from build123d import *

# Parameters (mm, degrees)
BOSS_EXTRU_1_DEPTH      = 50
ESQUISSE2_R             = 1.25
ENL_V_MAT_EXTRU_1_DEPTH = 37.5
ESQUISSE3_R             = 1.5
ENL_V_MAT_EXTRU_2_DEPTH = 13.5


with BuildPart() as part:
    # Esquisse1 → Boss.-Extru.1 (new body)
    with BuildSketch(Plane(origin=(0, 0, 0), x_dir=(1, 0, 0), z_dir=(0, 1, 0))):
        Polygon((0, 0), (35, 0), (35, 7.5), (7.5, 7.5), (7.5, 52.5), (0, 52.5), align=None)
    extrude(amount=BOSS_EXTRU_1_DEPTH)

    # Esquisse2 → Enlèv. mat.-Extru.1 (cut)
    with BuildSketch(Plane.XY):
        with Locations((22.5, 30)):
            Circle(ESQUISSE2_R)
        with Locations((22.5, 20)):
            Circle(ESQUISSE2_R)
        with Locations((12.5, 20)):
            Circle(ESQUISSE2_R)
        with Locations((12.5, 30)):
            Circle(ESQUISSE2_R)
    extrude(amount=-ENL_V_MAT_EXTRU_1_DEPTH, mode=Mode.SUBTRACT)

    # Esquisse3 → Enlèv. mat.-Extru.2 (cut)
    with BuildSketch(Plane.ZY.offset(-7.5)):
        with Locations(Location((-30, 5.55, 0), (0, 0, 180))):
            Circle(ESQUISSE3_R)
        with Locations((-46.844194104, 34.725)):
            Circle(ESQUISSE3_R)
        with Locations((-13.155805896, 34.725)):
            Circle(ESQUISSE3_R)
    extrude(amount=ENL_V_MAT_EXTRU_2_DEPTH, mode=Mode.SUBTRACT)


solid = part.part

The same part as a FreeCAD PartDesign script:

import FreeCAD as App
import Part
import Sketcher
from FreeCAD import Vector

doc = App.newDocument("Part")
body = doc.addObject("PartDesign::Body", "Body")

sketch1 = body.newObject("Sketcher::SketchObject", "Sketch")
sketch1.AttachmentSupport = (doc.getObject("XZ_Plane"), [""])
sketch1.MapMode = "FlatFace"
sketch1.addGeometry([
    Part.LineSegment(Vector(0, 0, 0), Vector(35, 0, 0)),
    Part.LineSegment(Vector(35, 0, 0), Vector(35, -8, 0)),
    Part.LineSegment(Vector(35, -8, 0), Vector(8, -8, 0)),
    Part.LineSegment(Vector(8, -8, 0), Vector(8, -52, 0)),
    Part.LineSegment(Vector(8, -52, 0), Vector(0, -52, 0)),
    Part.LineSegment(Vector(0, -52, 0), Vector(0, 0, 0)),
], False)
sketch1.addConstraint([
    Sketcher.Constraint("Coincident", 0, 2, 1, 1),
    Sketcher.Constraint("Coincident", 1, 2, 2, 1),
    Sketcher.Constraint("Coincident", 2, 2, 3, 1),
    Sketcher.Constraint("Coincident", 3, 2, 4, 1),
    Sketcher.Constraint("Coincident", 4, 2, 5, 1),
    Sketcher.Constraint("Coincident", 5, 2, 0, 1),
    Sketcher.Constraint("Horizontal", 0),
    Sketcher.Constraint("Vertical", 1),
    Sketcher.Constraint("Horizontal", 2),
    Sketcher.Constraint("Vertical", 3),
    Sketcher.Constraint("Horizontal", 4),
    Sketcher.Constraint("Vertical", 5),
    Sketcher.Constraint("Coincident", 5, 2, -1, 1),
    Sketcher.Constraint("Equal", 4, 1),
    Sketcher.Constraint("DistanceX", 0, 1, 0, 2, 35.0),
    Sketcher.Constraint("DistanceY", 3, 2, 3, 1, 45.0),
    Sketcher.Constraint("DistanceX", 2, 2, 2, 1, 27.5),
])
pad1 = body.newObject("PartDesign::Pad", "Pad")
pad1.Profile = sketch1
pad1.Length = 50
pad1.Reversed = True

sketch2 = body.newObject("Sketcher::SketchObject", "Sketch001")
sketch2.AttachmentSupport = (doc.getObject("XY_Plane"), [""])
sketch2.MapMode = "FlatFace"
sketch2.addGeometry([
    Part.Circle(Vector(22.5, 30, 0), Vector(0, 0, 1), 1.2),
    Part.Circle(Vector(22.5, 20, 0), Vector(0, 0, 1), 1.2),
    Part.Circle(Vector(12.5, 20, 0), Vector(0, 0, 1), 1.2),
    Part.Circle(Vector(12.5, 30, 0), Vector(0, 0, 1), 1.2),
], False)
sketch2.addConstraint([
    Sketcher.Constraint("Equal", 0, 1),
    Sketcher.Constraint("Equal", 1, 2),
    Sketcher.Constraint("Equal", 2, 3),
    Sketcher.Constraint("Horizontal", 1, 3, 2, 3),
    Sketcher.Constraint("Horizontal", 0, 3, 3, 3),
    Sketcher.Constraint("Vertical", 0, 3, 1, 3),
    Sketcher.Constraint("Vertical", 2, 3, 3, 3),
    Sketcher.Constraint("Diameter", 0, 2.5),
    Sketcher.Constraint("DistanceY", -1, 1, 0, 3, 30.0),
    Sketcher.Constraint("DistanceY", -1, 1, 1, 3, 20.0),
    Sketcher.Constraint("DistanceX", 2, 3, 1, 3, 10.0),
    Sketcher.Constraint("DistanceX", -1, 1, 0, 3, 22.5),
])
pocket1 = body.newObject("PartDesign::Pocket", "Pocket")
pocket1.Profile = sketch2
pocket1.Length = 37.5

sketch3 = body.newObject("Sketcher::SketchObject", "Sketch002")
sketch3.AttachmentSupport = (doc.getObject("YZ_Plane"), [""])
sketch3.MapMode = "FlatFace"
sketch3.AttachmentOffset = App.Placement(Vector(0, 0, 7.5), App.Rotation())
sketch3.addGeometry([
    Part.Circle(Vector(5.5, -30, 0), Vector(0, 0, 1), 1.5),
    Part.Circle(Vector(34.7, -46.8, 0), Vector(0, 0, 1), 1.5),
    Part.Circle(Vector(34.7, -13.2, 0), Vector(0, 0, 1), 1.5),
], False)
sketch3.addConstraint([
    Sketcher.Constraint("Equal", 0, 1),
    Sketcher.Constraint("Equal", 1, 2),
    Sketcher.Constraint("Vertical", 1, 3, 2, 3),
    Sketcher.Constraint("Diameter", 0, 3.0),
    Sketcher.Constraint("DistanceY", 0, 3, -1, 1, 30.0),
    Sketcher.Constraint("DistanceX", -1, 1, 0, 3, 5.55),
    Sketcher.Constraint("DistanceX", -1, 1, 1, 3, 34.725),
    Sketcher.Constraint("DistanceY", 1, 3, 2, 3, 33.688388),
    Sketcher.Constraint("DistanceY", 1, 3, -1, 1, 46.844194),
])
pocket2 = body.newObject("PartDesign::Pocket", "Pocket001")
pocket2.Profile = sketch3
pocket2.Length = 13.5

doc.recompute()
